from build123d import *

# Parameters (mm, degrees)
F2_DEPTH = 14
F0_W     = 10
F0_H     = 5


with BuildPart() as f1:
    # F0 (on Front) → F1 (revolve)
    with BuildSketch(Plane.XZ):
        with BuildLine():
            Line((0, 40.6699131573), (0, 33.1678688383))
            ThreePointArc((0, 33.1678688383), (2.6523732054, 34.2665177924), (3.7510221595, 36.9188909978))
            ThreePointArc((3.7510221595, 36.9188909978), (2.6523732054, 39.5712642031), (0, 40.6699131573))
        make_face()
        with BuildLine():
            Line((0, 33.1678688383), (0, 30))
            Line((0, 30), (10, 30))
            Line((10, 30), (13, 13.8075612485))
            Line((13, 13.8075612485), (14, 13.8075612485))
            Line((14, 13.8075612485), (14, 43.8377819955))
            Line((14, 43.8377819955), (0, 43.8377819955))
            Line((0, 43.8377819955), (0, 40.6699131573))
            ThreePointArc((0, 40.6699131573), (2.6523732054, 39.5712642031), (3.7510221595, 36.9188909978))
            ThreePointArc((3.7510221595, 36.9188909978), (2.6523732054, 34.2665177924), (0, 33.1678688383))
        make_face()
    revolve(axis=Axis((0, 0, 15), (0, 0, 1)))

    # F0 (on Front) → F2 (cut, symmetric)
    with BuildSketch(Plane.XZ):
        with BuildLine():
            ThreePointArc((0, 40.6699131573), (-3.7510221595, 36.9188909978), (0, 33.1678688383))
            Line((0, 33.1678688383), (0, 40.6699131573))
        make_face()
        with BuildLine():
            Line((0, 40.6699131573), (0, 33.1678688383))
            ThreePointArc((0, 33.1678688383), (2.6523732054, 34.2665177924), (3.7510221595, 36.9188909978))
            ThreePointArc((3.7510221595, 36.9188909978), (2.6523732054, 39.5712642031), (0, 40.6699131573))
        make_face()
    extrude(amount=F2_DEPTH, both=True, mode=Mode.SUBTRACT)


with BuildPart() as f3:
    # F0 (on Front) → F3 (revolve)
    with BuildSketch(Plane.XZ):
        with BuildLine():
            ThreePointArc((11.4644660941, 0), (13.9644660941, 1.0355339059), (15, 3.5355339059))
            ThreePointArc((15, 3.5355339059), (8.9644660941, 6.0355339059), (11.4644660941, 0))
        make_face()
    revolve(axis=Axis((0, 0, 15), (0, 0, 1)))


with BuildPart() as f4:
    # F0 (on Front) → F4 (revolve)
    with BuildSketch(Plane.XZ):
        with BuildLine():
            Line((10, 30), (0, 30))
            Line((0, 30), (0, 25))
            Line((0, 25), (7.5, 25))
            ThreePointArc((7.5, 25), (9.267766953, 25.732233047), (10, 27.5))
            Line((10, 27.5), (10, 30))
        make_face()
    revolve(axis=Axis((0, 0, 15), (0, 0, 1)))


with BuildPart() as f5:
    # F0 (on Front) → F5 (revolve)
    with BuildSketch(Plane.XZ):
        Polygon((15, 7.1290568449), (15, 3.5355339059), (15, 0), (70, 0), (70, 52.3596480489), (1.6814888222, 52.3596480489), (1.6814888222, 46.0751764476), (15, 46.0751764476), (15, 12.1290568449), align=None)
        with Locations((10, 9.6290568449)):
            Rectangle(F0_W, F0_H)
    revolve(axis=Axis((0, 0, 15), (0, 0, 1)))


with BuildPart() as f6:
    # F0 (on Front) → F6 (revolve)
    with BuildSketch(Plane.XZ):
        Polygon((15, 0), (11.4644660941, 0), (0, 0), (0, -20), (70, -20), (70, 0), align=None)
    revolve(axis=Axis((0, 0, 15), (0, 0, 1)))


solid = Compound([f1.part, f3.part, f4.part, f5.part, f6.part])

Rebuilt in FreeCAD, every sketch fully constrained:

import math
import FreeCAD as App
import Part
import Sketcher


def add_polygon(sketch, points):
    """Adds a closed chain of lines whose ends are joined by coincident constraints."""
    first, n = sketch.GeometryCount, len(points)
    for a, b in zip(points, points[1:] + points[:1]):
        sketch.addGeometry(Part.LineSegment(App.Vector(*a, 0), App.Vector(*b, 0)), False)
    for i in range(n):
        sketch.addConstraint(Sketcher.Constraint("Coincident", first + i, 2, first + (i + 1) % n, 1))

doc = App.newDocument("Part")
body = doc.addObject("PartDesign::Body", "Body")

# Sketch on XZ plane
sketch1 = body.newObject("Sketcher::SketchObject", "Sketch")
sketch1.AttachmentSupport = (doc.getObject("XZ_Plane"), [""])
sketch1.MapMode = "FlatFace"
add_polygon(sketch1, [(0, 30), (10, 30), (13, 13.8), (14, 13.8), (14, 43.8), (0, 43.8)])  # lines 0-5
sketch1.addConstraint(Sketcher.Constraint("Horizontal", 0))
sketch1.addConstraint(Sketcher.Constraint("Horizontal", 2))
sketch1.addConstraint(Sketcher.Constraint("Vertical", 3))
sketch1.addConstraint(Sketcher.Constraint("Horizontal", 4))
sketch1.addConstraint(Sketcher.Constraint("Vertical", 5))
sketch1.addConstraint(Sketcher.Constraint("PointOnObject", 4, 2, -2))
sketch1.addConstraint(Sketcher.Constraint("DistanceX", 0, 1, 0, 2, 10.0))
sketch1.addConstraint(Sketcher.Constraint("DistanceX", 2, 1, 2, 2, 1.0))
sketch1.addConstraint(Sketcher.Constraint("DistanceX", 4, 2, 4, 1, 14.0))
sketch1.addConstraint(Sketcher.Constraint("DistanceY", -1, 1, 0, 2, 30.0))
sketch1.addConstraint(Sketcher.Constraint("Distance", 1, 16.468001))
sketch1.addConstraint(Sketcher.Constraint("DistanceY", 3, 1, 3, 2, 30.030221))
revolution = body.newObject("PartDesign::Revolution", "Revolution")
revolution.Profile = sketch1
revolution.ReferenceAxis = (sketch1, ["V_Axis"])
revolution.Angle = 360

# Sketch on XZ plane
sketch2 = body.newObject("Sketcher::SketchObject", "Sketch001")
sketch2.AttachmentSupport = (doc.getObject("XZ_Plane"), [""])
sketch2.MapMode = "FlatFace"
sketch2.addGeometry(Part.ArcOfCircle(Part.Circle(App.Vector(0, 36.9, 0), App.Vector(0, 0, 1), 3.8), math.radians(90), math.radians(270)), False)
sketch2.addGeometry(Part.ArcOfCircle(Part.Circle(App.Vector(0, 36.9, 0), App.Vector(0, 0, 1), 3.8), math.radians(-90), math.radians(0)), False)
sketch2.addGeometry(Part.ArcOfCircle(Part.Circle(App.Vector(0, 36.9, 0), App.Vector(0, 0, 1), 3.8), math.radians(0), math.radians(90)), False)
sketch2.addConstraint(Sketcher.Constraint("Tangent", 0, 2, 1, 1))
sketch2.addConstraint(Sketcher.Constraint("Tangent", 1, 2, 2, 1))
sketch2.addConstraint(Sketcher.Constraint("Tangent", 2, 2, 0, 1))
sketch2.addConstraint(Sketcher.Constraint("PointOnObject", 0, 3, -2))
sketch2.addConstraint(Sketcher.Constraint("PointOnObject", 0, 2, -2))
sketch2.addConstraint(Sketcher.Constraint("PointOnObject", 2, 2, -2))
sketch2.addConstraint(Sketcher.Constraint("Horizontal", 2, 3, 1, 2))
sketch2.addConstraint(Sketcher.Constraint("Radius", 0, 3.751022))
sketch2.addConstraint(Sketcher.Constraint("DistanceY", -1, 1, 0, 3, 36.918891))
pocket1 = body.newObject("PartDesign::Pocket", "Pocket")
pocket1.Profile = sketch2
pocket1.Length = 28
pocket1.Midplane = True
body2 = doc.addObject("PartDesign::Body", "Body001")

# Sketch on XZ plane
sketch3 = body2.newObject("Sketcher::SketchObject", "Sketch002")
sketch3.AttachmentSupport = (doc.getObject("XZ_Plane001"), [""])
sketch3.MapMode = "FlatFace"
sketch3.addGeometry(Part.ArcOfCircle(Part.Circle(App.Vector(11.5, 3.5, 0), App.Vector(0, 0, 1), 3.5), math.radians(-90), math.radians(0)), False)
sketch3.addGeometry(Part.ArcOfCircle(Part.Circle(App.Vector(11.5, 3.5, 0), App.Vector(0, 0, 1), 3.5), math.radians(0), math.radians(270)), False)
sketch3.addConstraint(Sketcher.Constraint("Tangent", 0, 1, 1, 2))
sketch3.addConstraint(Sketcher.Constraint("Coincident", 1, 1, 0, 2))
sketch3.addConstraint(Sketcher.Constraint("PointOnObject", 0, 1, -1))
sketch3.addConstraint(Sketcher.Constraint("Horizontal", 0, 3, 1, 1))
sketch3.addConstraint(Sketcher.Constraint("Vertical", 1, 3, 0, 1))
sketch3.addConstraint(Sketcher.Constraint("DistanceX", -1, 1, 1, 1, 15.0))
sketch3.addConstraint(Sketcher.Constraint("Radius", 0, 3.535534))
revolution2 = body2.newObject("PartDesign::Revolution", "Revolution001")
revolution2.Profile = sketch3
revolution2.ReferenceAxis = (sketch3, ["V_Axis"])
revolution2.Angle = 360
body3 = doc.addObject("PartDesign::Body", "Body002")

# Sketch on XZ plane
sketch4 = body3.newObject("Sketcher::SketchObject", "Sketch003")
sketch4.AttachmentSupport = (doc.getObject("XZ_Plane002"), [""])
sketch4.MapMode = "FlatFace"
sketch4.addGeometry(Part.LineSegment(App.Vector(10, 30, 0), App.Vector(0, 30, 0)), False)
sketch4.addGeometry(Part.LineSegment(App.Vector(0, 30, 0), App.Vector(0, 25, 0)), False)
sketch4.addGeometry(Part.LineSegment(App.Vector(0, 25, 0), App.Vector(7.5, 25, 0)), False)
sketch4.addGeometry(Part.ArcOfCircle(Part.Circle(App.Vector(7.5, 27.5, 0), App.Vector(0, 0, 1), 2.5), math.radians(-90), math.radians(0)), False)
sketch4.addGeometry(Part.LineSegment(App.Vector(10, 27.5, 0), App.Vector(10, 30, 0)), False)
sketch4.addConstraint(Sketcher.Constraint("Coincident", 0, 2, 1, 1))
sketch4.addConstraint(Sketcher.Constraint("Coincident", 1, 2, 2, 1))
sketch4.addConstraint(Sketcher.Constraint("Tangent", 2, 2, 3, 1))
sketch4.addConstraint(Sketcher.Constraint("Tangent", 3, 2, 4, 1))
sketch4.addConstraint(Sketcher.Constraint("Coincident", 4, 2, 0, 1))
sketch4.addConstraint(Sketcher.Constraint("Horizontal", 0))
sketch4.addConstraint(Sketcher.Constraint("Vertical", 1))
sketch4.addConstraint(Sketcher.Constraint("Horizontal", 2))
sketch4.addConstraint(Sketcher.Constraint("Vertical", 4))
sketch4.addConstraint(Sketcher.Constraint("PointOnObject", 0, 2, -2))
sketch4.addConstraint(Sketcher.Constraint("Radius", 3, 2.5))
sketch4.addConstraint(Sketcher.Constraint("DistanceX", 0, 2, 0, 1, 10.0))
sketch4.addConstraint(Sketcher.Constraint("DistanceY", 1, 2, 1, 1, 5.0))
sketch4.addConstraint(Sketcher.Constraint("DistanceY", -1, 1, 0, 2, 30.0))
revolution3 = body3.newObject("PartDesign::Revolution", "Revolution002")
revolution3.Profile = sketch4
revolution3.ReferenceAxis = (sketch4, ["V_Axis"])
revolution3.Angle = 360
body4 = doc.addObject("PartDesign::Body", "Body003")

# Sketch on XZ plane
sketch5 = body4.newObject("Sketcher::SketchObject", "Sketch004")
sketch5.AttachmentSupport = (doc.getObject("XZ_Plane003"), [""])
sketch5.MapMode = "FlatFace"
add_polygon(sketch5, [(15, 0), (70, 0), (70, 52.4), (1.7, 52.4), (1.7, 46.1), (15, 46.1), (15, 12.1), (5, 12.1), (5, 7.1), (15, 7.1)])  # lines 0-9
sketch5.addConstraint(Sketcher.Constraint("Horizontal", 0))
sketch5.addConstraint(Sketcher.Constraint("Vertical", 1))
sketch5.addConstraint(Sketcher.Constraint("Horizontal", 2))
sketch5.addConstraint(Sketcher.Constraint("Vertical", 3))
sketch5.addConstraint(Sketcher.Constraint("Horizontal", 4))
sketch5.addConstraint(Sketcher.Constraint("Vertical", 5))
sketch5.addConstraint(Sketcher.Constraint("Horizontal", 6))
sketch5.addConstraint(Sketcher.Constraint("Vertical", 7))
sketch5.addConstraint(Sketcher.Constraint("Horizontal", 8))
sketch5.addConstraint(Sketcher.Constraint("Vertical", 9))
sketch5.addConstraint(Sketcher.Constraint("PointOnObject", 0, 2, -1))
sketch5.addConstraint(Sketcher.Constraint("Vertical", 5, 2, 8, 2))
sketch5.addConstraint(Sketcher.Constraint("DistanceX", 0, 1, 0, 2, 55.0))
sketch5.addConstraint(Sketcher.Constraint("DistanceX", 6, 2, 6, 1, 10.0))
sketch5.addConstraint(Sketcher.Constraint("DistanceY", 7, 2, 7, 1, 5.0))
sketch5.addConstraint(Sketcher.Constraint("DistanceX", -1, 1, 0, 2, 70.0))
sketch5.addConstraint(Sketcher.Constraint("DistanceX", 2, 2, 2, 1, 68.318511))
sketch5.addConstraint(Sketcher.Constraint("DistanceY", 1, 1, 1, 2, 52.359648))
sketch5.addConstraint(Sketcher.Constraint("DistanceY", 3, 2, 3, 1, 6.284472))
sketch5.addConstraint(Sketcher.Constraint("DistanceY", 5, 2, 5, 1, 33.94612))
revolution4 = body4.newObject("PartDesign::Revolution", "Revolution003")
revolution4.Profile = sketch5
revolution4.ReferenceAxis = (sketch5, ["V_Axis"])
revolution4.Angle = 360
body5 = doc.addObject("PartDesign::Body", "Body004")

# Sketch on XZ plane
sketch6 = body5.newObject("Sketcher::SketchObject", "Sketch005")
sketch6.AttachmentSupport = (doc.getObject("XZ_Plane004"), [""])
sketch6.MapMode = "FlatFace"
add_polygon(sketch6, [(0, 0), (0, -20), (70, -20), (70, 0)])  # lines 0-3
sketch6.addConstraint(Sketcher.Constraint("Vertical", 0))
sketch6.addConstraint(Sketcher.Constraint("Horizontal", 1))
sketch6.addConstraint(Sketcher.Constraint("Vertical", 2))
sketch6.addConstraint(Sketcher.Constraint("Horizontal", 3))
sketch6.addConstraint(Sketcher.Constraint("Coincident", 3, 2, -1, 1))
sketch6.addConstraint(Sketcher.Constraint("DistanceX", 1, 1, 1, 2, 70.0))
sketch6.addConstraint(Sketcher.Constraint("DistanceY", 0, 2, 0, 1, 20.0))
revolution5 = body5.newObject("PartDesign::Revolution", "Revolution004")
revolution5.Profile = sketch6
revolution5.ReferenceAxis = (sketch6, ["V_Axis"])
revolution5.Angle = 360

doc.recompute()
